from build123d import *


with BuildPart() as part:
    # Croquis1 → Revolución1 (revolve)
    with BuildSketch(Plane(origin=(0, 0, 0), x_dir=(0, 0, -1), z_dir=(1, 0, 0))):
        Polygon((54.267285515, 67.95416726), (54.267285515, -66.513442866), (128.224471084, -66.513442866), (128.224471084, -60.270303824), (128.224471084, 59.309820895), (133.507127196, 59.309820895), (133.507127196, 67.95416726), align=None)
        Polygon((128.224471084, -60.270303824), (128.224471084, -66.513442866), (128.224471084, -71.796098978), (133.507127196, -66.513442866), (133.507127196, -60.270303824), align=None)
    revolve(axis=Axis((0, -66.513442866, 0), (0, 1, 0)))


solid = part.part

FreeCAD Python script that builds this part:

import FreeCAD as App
import Part
import Sketcher
Q = App.Units.Quantity


def add_polygon(sketch, points):
    """Adds a closed chain of lines whose ends are joined by coincident constraints."""
    first, n = sketch.GeometryCount, len(points)
    for a, b in zip(points, points[1:] + points[:1]):
        sketch.addGeometry(Part.LineSegment(App.Vector(*a, 0), App.Vector(*b, 0)), False)
    for i in range(n):
        sketch.addConstraint(Sketcher.Constraint("Coincident", first + i, 2, first + (i + 1) % n, 1))

doc = App.newDocument("Part")
params = doc.addObject("Spreadsheet::Sheet", "Params")
for row, (alias, value) in enumerate([
    ("revolution_angle", "360 deg"),
], start=1):
    params.set(f"A{row}", alias)
    params.set(f"B{row}", "=" + value)
    params.setAlias(f"B{row}", alias)

body = doc.addObject("PartDesign::Body", "Body")

# Sketch on YZ plane
sketch1 = body.newObject("Sketcher::SketchObject", "Sketch")
sketch1.AttachmentSupport = (doc.getObject("YZ_Plane"), [""])
sketch1.MapMode = "FlatFace"
add_polygon(sketch1, [(68, -54), (-67, -54), (-67, -128), (-72, -128), (-67, -134), (-60, -134), (-60, -128), (59, -128), (59, -134), (68, -134)])  # lines 0-9
sketch1.addConstraint([
    Sketcher.Constraint("Horizontal", 0),
    Sketcher.Constraint("Vertical", 1),
    Sketcher.Constraint("Horizontal", 2),
    Sketcher.Constraint("Horizontal", 4),
    Sketcher.Constraint("Vertical", 5),
    Sketcher.Constraint("Horizontal", 6),
    Sketcher.Constraint("Vertical", 7),
    Sketcher.Constraint("Horizontal", 8),
    Sketcher.Constraint("Vertical", 9),
    Sketcher.Constraint("Horizontal", 2, 2, 5, 2),
    Sketcher.Constraint("Horizontal", 4, 2, 7, 2),
    Sketcher.Constraint("Vertical", 1, 2, 3, 2),
    Sketcher.Constraint("Equal", 2, 5),
    Sketcher.Constraint("DistanceX", 0, 2, 0, 1, Q("134.46761 mm")),
    Sketcher.Constraint("DistanceX", 4, 1, 4, 2, Q("6.243139 mm")),
    Sketcher.Constraint("DistanceY", 9, 1, 9, 2, Q("79.239842 mm")),
    Sketcher.Constraint("DistanceX", 2, 2, -1, 1, Q("71.796099 mm")),
    Sketcher.Constraint("DistanceX", 2, 2, 2, 1, Q("5.282656 mm")),
    Sketcher.Constraint("DistanceX", 6, 1, 6, 2, Q("119.580125 mm")),
    Sketcher.Constraint("DistanceY", 1, 2, -1, 1, Q("128.224471 mm")),
])
revolution = body.newObject("PartDesign::Revolution", "Revolution")
revolution.Profile = sketch1
revolution.ReferenceAxis = (sketch1, ["H_Axis"])
revolution.setExpression("Angle", "Params.revolution_angle")

doc.recompute()
